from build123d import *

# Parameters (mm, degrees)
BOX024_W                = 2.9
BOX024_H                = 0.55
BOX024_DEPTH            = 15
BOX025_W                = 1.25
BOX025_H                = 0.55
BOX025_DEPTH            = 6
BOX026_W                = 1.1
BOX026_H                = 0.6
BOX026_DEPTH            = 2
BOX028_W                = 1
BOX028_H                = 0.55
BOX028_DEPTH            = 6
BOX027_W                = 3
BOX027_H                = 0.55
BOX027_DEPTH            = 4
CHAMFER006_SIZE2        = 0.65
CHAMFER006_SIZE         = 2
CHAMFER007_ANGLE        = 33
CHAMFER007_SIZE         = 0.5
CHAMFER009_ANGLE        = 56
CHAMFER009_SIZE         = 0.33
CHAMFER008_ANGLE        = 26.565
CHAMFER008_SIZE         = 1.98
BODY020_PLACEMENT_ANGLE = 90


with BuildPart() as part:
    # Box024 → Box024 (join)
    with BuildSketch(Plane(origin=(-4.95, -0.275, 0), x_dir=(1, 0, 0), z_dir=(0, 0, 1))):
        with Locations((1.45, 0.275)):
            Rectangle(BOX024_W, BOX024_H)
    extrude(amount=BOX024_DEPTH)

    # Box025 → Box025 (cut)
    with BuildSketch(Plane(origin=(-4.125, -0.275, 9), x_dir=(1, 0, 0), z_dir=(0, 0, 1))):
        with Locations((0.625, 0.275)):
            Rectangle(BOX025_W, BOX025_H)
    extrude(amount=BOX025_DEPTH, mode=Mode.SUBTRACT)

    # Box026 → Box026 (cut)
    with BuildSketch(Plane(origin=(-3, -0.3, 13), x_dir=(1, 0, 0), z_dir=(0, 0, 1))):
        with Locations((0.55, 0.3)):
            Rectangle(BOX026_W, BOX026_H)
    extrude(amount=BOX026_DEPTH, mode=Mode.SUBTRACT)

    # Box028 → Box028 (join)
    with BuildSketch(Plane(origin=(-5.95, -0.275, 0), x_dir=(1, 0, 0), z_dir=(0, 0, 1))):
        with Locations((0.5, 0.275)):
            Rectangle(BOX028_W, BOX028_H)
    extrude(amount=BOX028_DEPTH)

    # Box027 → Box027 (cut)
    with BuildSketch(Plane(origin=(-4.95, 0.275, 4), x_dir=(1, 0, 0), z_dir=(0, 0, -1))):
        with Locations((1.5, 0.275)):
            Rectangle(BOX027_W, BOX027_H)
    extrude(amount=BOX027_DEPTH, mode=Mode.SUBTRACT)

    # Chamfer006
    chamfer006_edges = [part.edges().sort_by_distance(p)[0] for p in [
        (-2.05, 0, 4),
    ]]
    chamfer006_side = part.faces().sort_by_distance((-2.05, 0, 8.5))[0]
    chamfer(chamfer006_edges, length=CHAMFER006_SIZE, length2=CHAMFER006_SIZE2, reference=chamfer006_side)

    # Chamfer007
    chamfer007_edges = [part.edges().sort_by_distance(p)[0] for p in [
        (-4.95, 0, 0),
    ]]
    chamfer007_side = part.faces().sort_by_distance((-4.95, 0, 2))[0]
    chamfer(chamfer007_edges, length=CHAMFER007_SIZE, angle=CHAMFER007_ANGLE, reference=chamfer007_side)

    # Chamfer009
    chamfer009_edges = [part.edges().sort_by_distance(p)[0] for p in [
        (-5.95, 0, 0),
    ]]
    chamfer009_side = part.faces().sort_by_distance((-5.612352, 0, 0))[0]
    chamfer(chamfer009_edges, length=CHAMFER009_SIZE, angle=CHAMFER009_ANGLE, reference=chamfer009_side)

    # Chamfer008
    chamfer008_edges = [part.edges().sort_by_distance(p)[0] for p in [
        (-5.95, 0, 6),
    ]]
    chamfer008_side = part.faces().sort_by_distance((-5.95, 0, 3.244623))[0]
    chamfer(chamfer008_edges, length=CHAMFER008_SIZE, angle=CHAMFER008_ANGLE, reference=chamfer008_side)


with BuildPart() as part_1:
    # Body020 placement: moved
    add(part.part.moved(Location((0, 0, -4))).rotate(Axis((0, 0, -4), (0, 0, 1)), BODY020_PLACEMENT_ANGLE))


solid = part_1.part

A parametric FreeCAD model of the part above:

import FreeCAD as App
import Part
import Sketcher
from FreeCAD import Vector


def edges_at(feature, points):
    """Names of the edges that pass closest to the given points."""
    edges = feature.Shape.Edges
    near = lambda p: min(range(len(edges)), key=lambda i: edges[i].distToShape(Part.Vertex(*p))[0])
    return sorted({f"Edge{near(p) + 1}" for p in points})

doc = App.newDocument("Part")
params = doc.addObject("Spreadsheet::Sheet", "Params")
for row, (alias, value) in enumerate([
    ("sketch1_width", "2.9 mm"),
    ("sketch1_height", "0.55 mm"),
    ("pad1_length", "15 mm"),
    ("sketch2_width", "1.25 mm"),
    ("sketch2_height", "0.55 mm"),
    ("pocket1_length", "6 mm"),
    ("sketch3_width", "1.1 mm"),
    ("sketch3_height", "0.6 mm"),
    ("pocket2_length", "2 mm"),
    ("sketch4_width", "1 mm"),
    ("sketch4_height", "0.55 mm"),
    ("pad2_length", "6 mm"),
    ("sketch5_width", "3 mm"),
    ("sketch5_height", "0.55 mm"),
    ("pocket3_length", "4 mm"),
    ("chamfer_size", "2 mm"),
    ("chamfer_size2", "0.65 mm"),
    ("chamfer2_size", "0.5 mm"),
    ("chamfer3_size", "0.33 mm"),
    ("chamfer4_size", "1.98 mm"),
], start=1):
    params.set(f"A{row}", alias)
    params.set(f"B{row}", "=" + value)
    params.setAlias(f"B{row}", alias)

body = doc.addObject("PartDesign::Body", "Body")

# Sketch on XY plane
sketch1 = body.newObject("Sketcher::SketchObject", "Sketch")
sketch1.AttachmentSupport = (doc.getObject("XY_Plane"), [""])
sketch1.MapMode = "FlatFace"
sketch1.addGeometry([
    Part.LineSegment(Vector(-5, 0.3, 0), Vector(-5, -0.3, 0)),
    Part.LineSegment(Vector(-5, -0.3, 0), Vector(-2, -0.3, 0)),
    Part.LineSegment(Vector(-2, -0.3, 0), Vector(-2, 0.3, 0)),
    Part.LineSegment(Vector(-2, 0.3, 0), Vector(-5, 0.3, 0)),
], False)
sketch1.addConstraint([
    Sketcher.Constraint("Coincident", 0, 2, 1, 1),
    Sketcher.Constraint("Coincident", 1, 2, 2, 1),
    Sketcher.Constraint("Coincident", 2, 2, 3, 1),
    Sketcher.Constraint("Coincident", 3, 2, 0, 1),
    Sketcher.Constraint("Vertical", 0),
    Sketcher.Constraint("Horizontal", 1),
    Sketcher.Constraint("Vertical", 2),
    Sketcher.Constraint("Horizontal", 3),
    Sketcher.Constraint("DistanceX", 1, 1, 1, 2, 2.9),
    Sketcher.Constraint("DistanceY", 0, 2, 0, 1, 0.55),
    Sketcher.Constraint("DistanceX", 0, 2, -1, 1, 4.95),
    Sketcher.Constraint("DistanceY", 0, 2, -1, 1, 0.275),
])
sketch1.setExpression("Constraints[8]", "Params.sketch1_width")
sketch1.setExpression("Constraints[9]", "Params.sketch1_height")
pad1 = body.newObject("PartDesign::Pad", "Pad")
pad1.Profile = sketch1
pad1.setExpression("Length", "Params.pad1_length")

# Sketch on XY plane
sketch2 = body.newObject("Sketcher::SketchObject", "Sketch001")
sketch2.AttachmentSupport = (doc.getObject("XY_Plane"), [""])
sketch2.MapMode = "FlatFace"
sketch2.AttachmentOffset = App.Placement(Vector(0, 0, 9), App.Rotation())
sketch2.addGeometry([
    Part.LineSegment(Vector(-4.1, 0.3, 0), Vector(-4.1, -0.3, 0)),
    Part.LineSegment(Vector(-4.1, -0.3, 0), Vector(-2.9, -0.3, 0)),
    Part.LineSegment(Vector(-2.9, -0.3, 0), Vector(-2.9, 0.3, 0)),
    Part.LineSegment(Vector(-2.9, 0.3, 0), Vector(-4.1, 0.3, 0)),
], False)
sketch2.addConstraint([
    Sketcher.Constraint("Coincident", 0, 2, 1, 1),
    Sketcher.Constraint("Coincident", 1, 2, 2, 1),
    Sketcher.Constraint("Coincident", 2, 2, 3, 1),
    Sketcher.Constraint("Coincident", 3, 2, 0, 1),
    Sketcher.Constraint("Vertical", 0),
    Sketcher.Constraint("Horizontal", 1),
    Sketcher.Constraint("Vertical", 2),
    Sketcher.Constraint("Horizontal", 3),
    Sketcher.Constraint("DistanceX", 1, 1, 1, 2, 1.25),
    Sketcher.Constraint("DistanceY", 0, 2, 0, 1, 0.55),
    Sketcher.Constraint("DistanceX", 0, 2, -1, 1, 4.125),
    Sketcher.Constraint("DistanceY", 0, 2, -1, 1, 0.275),
])
sketch2.setExpression("Constraints[8]", "Params.sketch2_width")
sketch2.setExpression("Constraints[9]", "Params.sketch2_height")
pocket1 = body.newObject("PartDesign::Pocket", "Pocket")
pocket1.Profile = sketch2
pocket1.setExpression("Length", "Params.pocket1_length")
pocket1.Reversed = True

# Sketch on XY plane
sketch3 = body.newObject("Sketcher::SketchObject", "Sketch002")
sketch3.AttachmentSupport = (doc.getObject("XY_Plane"), [""])
sketch3.MapMode = "FlatFace"
sketch3.AttachmentOffset = App.Placement(Vector(0, 0, 13), App.Rotation())
sketch3.addGeometry([
    Part.LineSegment(Vector(-3, 0.3, 0), Vector(-3, -0.3, 0)),
    Part.LineSegment(Vector(-3, -0.3, 0), Vector(-1.9, -0.3, 0)),
    Part.LineSegment(Vector(-1.9, -0.3, 0), Vector(-1.9, 0.3, 0)),
    Part.LineSegment(Vector(-1.9, 0.3, 0), Vector(-3, 0.3, 0)),
], False)
sketch3.addConstraint([
    Sketcher.Constraint("Coincident", 0, 2, 1, 1),
    Sketcher.Constraint("Coincident", 1, 2, 2, 1),
    Sketcher.Constraint("Coincident", 2, 2, 3, 1),
    Sketcher.Constraint("Coincident", 3, 2, 0, 1),
    Sketcher.Constraint("Vertical", 0),
    Sketcher.Constraint("Horizontal", 1),
    Sketcher.Constraint("Vertical", 2),
    Sketcher.Constraint("Horizontal", 3),
    Sketcher.Constraint("DistanceX", 1, 1, 1, 2, 1.1),
    Sketcher.Constraint("DistanceY", 0, 2, 0, 1, 0.6),
    Sketcher.Constraint("DistanceX", 0, 2, -1, 1, 3.0),
    Sketcher.Constraint("DistanceY", 0, 2, -1, 1, 0.3),
])
sketch3.setExpression("Constraints[8]", "Params.sketch3_width")
sketch3.setExpression("Constraints[9]", "Params.sketch3_height")
pocket2 = body.newObject("PartDesign::Pocket", "Pocket001")
pocket2.Profile = sketch3
pocket2.setExpression("Length", "Params.pocket2_length")
pocket2.Reversed = True

# Sketch on XY plane
sketch4 = body.newObject("Sketcher::SketchObject", "Sketch003")
sketch4.AttachmentSupport = (doc.getObject("XY_Plane"), [""])
sketch4.MapMode = "FlatFace"
sketch4.addGeometry([
    Part.LineSegment(Vector(-6, 0.3, 0), Vector(-6, -0.3, 0)),
    Part.LineSegment(Vector(-6, -0.3, 0), Vector(-5, -0.3, 0)),
    Part.LineSegment(Vector(-5, -0.3, 0), Vector(-5, 0.3, 0)),
    Part.LineSegment(Vector(-5, 0.3, 0), Vector(-6, 0.3, 0)),
], False)
sketch4.addConstraint([
    Sketcher.Constraint("Coincident", 0, 2, 1, 1),
    Sketcher.Constraint("Coincident", 1, 2, 2, 1),
    Sketcher.Constraint("Coincident", 2, 2, 3, 1),
    Sketcher.Constraint("Coincident", 3, 2, 0, 1),
    Sketcher.Constraint("Vertical", 0),
    Sketcher.Constraint("Horizontal", 1),
    Sketcher.Constraint("Vertical", 2),
    Sketcher.Constraint("Horizontal", 3),
    Sketcher.Constraint("DistanceX", 1, 1, 1, 2, 1.0),
    Sketcher.Constraint("DistanceY", 0, 2, 0, 1, 0.55),
    Sketcher.Constraint("DistanceX", 0, 2, -1, 1, 5.95),
    Sketcher.Constraint("DistanceY", 0, 2, -1, 1, 0.275),
])
sketch4.setExpression("Constraints[8]", "Params.sketch4_width")
sketch4.setExpression("Constraints[9]", "Params.sketch4_height")
pad2 = body.newObject("PartDesign::Pad", "Pad001")
pad2.Profile = sketch4
pad2.setExpression("Length", "Params.pad2_length")

# Sketch on XY plane
sketch5 = body.newObject("Sketcher::SketchObject", "Sketch004")
sketch5.AttachmentSupport = (doc.getObject("XY_Plane"), [""])
sketch5.MapMode = "FlatFace"
sketch5.AttachmentOffset = App.Placement(Vector(0, 0, 4), App.Rotation())
sketch5.addGeometry([
    Part.LineSegment(Vector(-5, -0.3, 0), Vector(-5, 0.3, 0)),
    Part.LineSegment(Vector(-5, 0.3, 0), Vector(-1.9, 0.3, 0)),
    Part.LineSegment(Vector(-1.9, 0.3, 0), Vector(-1.9, -0.3, 0)),
    Part.LineSegment(Vector(-1.9, -0.3, 0), Vector(-5, -0.3, 0)),
], False)
sketch5.addConstraint([
    Sketcher.Constraint("Coincident", 0, 2, 1, 1),
    Sketcher.Constraint("Coincident", 1, 2, 2, 1),
    Sketcher.Constraint("Coincident", 2, 2, 3, 1),
    Sketcher.Constraint("Coincident", 3, 2, 0, 1),
    Sketcher.Constraint("Vertical", 0),
    Sketcher.Constraint("Horizontal", 1),
    Sketcher.Constraint("Vertical", 2),
    Sketcher.Constraint("Horizontal", 3),
    Sketcher.Constraint("DistanceX", 1, 1, 1, 2, 3.0),
    Sketcher.Constraint("DistanceY", 0, 1, 0, 2, 0.55),
    Sketcher.Constraint("DistanceX", 0, 2, -1, 1, 4.95),
    Sketcher.Constraint("DistanceY", -1, 1, 0, 2, 0.275),
])
sketch5.setExpression("Constraints[8]", "Params.sketch5_width")
sketch5.setExpression("Constraints[9]", "Params.sketch5_height")
pocket3 = body.newObject("PartDesign::Pocket", "Pocket002")
pocket3.Profile = sketch5
pocket3.setExpression("Length", "Params.pocket3_length")
doc.recompute()

chamfer = body.newObject("PartDesign::Chamfer", "Chamfer")
chamfer.Base = (pocket3, edges_at(pocket3, [(-2.05, 0, 4)]))
chamfer.ChamferType = "Two distances"
chamfer.setExpression("Size", "Params.chamfer_size")
chamfer.setExpression("Size2", "Params.chamfer_size2")
doc.recompute()

chamfer2 = body.newObject("PartDesign::Chamfer", "Chamfer001")
chamfer2.Base = (chamfer, edges_at(chamfer, [(-4.95, 0, 0)]))
chamfer2.ChamferType = "Distance and Angle"
chamfer2.setExpression("Size", "Params.chamfer2_size")
chamfer2.Angle = 33
doc.recompute()

chamfer3 = body.newObject("PartDesign::Chamfer", "Chamfer002")
chamfer3.Base = (chamfer2, edges_at(chamfer2, [(-5.95, 0, 0)]))
chamfer3.ChamferType = "Distance and Angle"
chamfer3.setExpression("Size", "Params.chamfer3_size")
chamfer3.Angle = 56
doc.recompute()

chamfer4 = body.newObject("PartDesign::Chamfer", "Chamfer003")
chamfer4.Base = (chamfer3, edges_at(chamfer3, [(-5.95, 0, 6)]))
chamfer4.ChamferType = "Distance and Angle"
chamfer4.setExpression("Size", "Params.chamfer4_size")
chamfer4.Angle = 26.565
body2 = doc.addObject("PartDesign::Body", "Body001")
doc.recompute()

body.Placement = App.Placement(Vector(0, 0, -4), App.Rotation(Vector(0, 0, 1), 90))
boolean = body2.newObject("PartDesign::Boolean", "Boolean")
boolean.Type = "Fuse"
boolean.addObjects([body])

doc.recompute()
